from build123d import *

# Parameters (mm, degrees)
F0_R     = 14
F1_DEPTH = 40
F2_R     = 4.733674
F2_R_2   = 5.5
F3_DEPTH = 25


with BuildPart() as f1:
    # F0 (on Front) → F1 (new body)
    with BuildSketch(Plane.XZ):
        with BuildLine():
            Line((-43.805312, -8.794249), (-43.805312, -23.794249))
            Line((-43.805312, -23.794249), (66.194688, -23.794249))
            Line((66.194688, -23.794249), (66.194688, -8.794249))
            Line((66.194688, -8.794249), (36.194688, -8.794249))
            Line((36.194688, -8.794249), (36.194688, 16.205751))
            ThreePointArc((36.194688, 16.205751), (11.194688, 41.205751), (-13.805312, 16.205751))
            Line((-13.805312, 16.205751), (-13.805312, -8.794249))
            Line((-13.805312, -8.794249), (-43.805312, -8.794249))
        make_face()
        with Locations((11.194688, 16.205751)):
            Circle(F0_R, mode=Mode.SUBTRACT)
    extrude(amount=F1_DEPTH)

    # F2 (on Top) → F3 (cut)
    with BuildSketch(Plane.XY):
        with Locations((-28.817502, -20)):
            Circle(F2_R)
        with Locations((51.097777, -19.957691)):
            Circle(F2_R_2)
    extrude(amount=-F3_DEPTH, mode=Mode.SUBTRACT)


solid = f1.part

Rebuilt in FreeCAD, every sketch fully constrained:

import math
import FreeCAD as App
import Part
import Sketcher

V = App.Vector
Q = App.Units.Quantity

doc = App.newDocument("Part")
params = doc.addObject("Spreadsheet::Sheet", "Params")
for row, (alias, value) in enumerate([
    ("sketch1_diameter", "28 mm"),
    ("sketch1_radius", "25 mm"),
    ("sketch1_width", "110 mm"),
    ("sketch1_height", "15 mm"),
    ("sketch1_height2", "25 mm"),
    ("pad1_length", "40 mm"),
    ("sketch2_diameter", "11 mm"),
    ("pocket1_length", "25 mm"),
], start=1):
    params.set(f"A{row}", alias)
    params.set(f"B{row}", "=" + value)
    params.setAlias(f"B{row}", alias)

body = doc.addObject("PartDesign::Body", "Body")

sketch1 = body.newObject("Sketcher::SketchObject", "Sketch")
sketch1.AttachmentSupport = (doc.getObject("XZ_Plane"), [""])
sketch1.MapMode = "FlatFace"
sketch1.addGeometry(Part.LineSegment(V(-44, -9, 0), V(-44, -24, 0)), False)
sketch1.addGeometry(Part.LineSegment(V(-44, -24, 0), V(66, -24, 0)), False)
sketch1.addGeometry(Part.LineSegment(V(66, -24, 0), V(66, -9, 0)), False)
sketch1.addGeometry(Part.LineSegment(V(66, -9, 0), V(36, -9, 0)), False)
sketch1.addGeometry(Part.LineSegment(V(36, -9, 0), V(36, 16, 0)), False)
sketch1.addGeometry(Part.ArcOfCircle(Part.Circle(V(11, 16, 0), V(0, 0, 1), 25), math.radians(0), math.radians(180)), False)
sketch1.addGeometry(Part.LineSegment(V(-14, 16, 0), V(-14, -9, 0)), False)
sketch1.addGeometry(Part.LineSegment(V(-14, -9, 0), V(-44, -9, 0)), False)
sketch1.addGeometry(Part.Circle(V(11, 16, 0), V(0, 0, 1), 14), False)
sketch1.addConstraint(Sketcher.Constraint("Coincident", 0, 2, 1, 1))
sketch1.addConstraint(Sketcher.Constraint("Coincident", 1, 2, 2, 1))
sketch1.addConstraint(Sketcher.Constraint("Coincident", 2, 2, 3, 1))
sketch1.addConstraint(Sketcher.Constraint("Coincident", 3, 2, 4, 1))
sketch1.addConstraint(Sketcher.Constraint("Tangent", 4, 2, 5, 1))
sketch1.addConstraint(Sketcher.Constraint("Tangent", 5, 2, 6, 1))
sketch1.addConstraint(Sketcher.Constraint("Coincident", 6, 2, 7, 1))
sketch1.addConstraint(Sketcher.Constraint("Coincident", 7, 2, 0, 1))
sketch1.addConstraint(Sketcher.Constraint("Vertical", 0))
sketch1.addConstraint(Sketcher.Constraint("Horizontal", 1))
sketch1.addConstraint(Sketcher.Constraint("Vertical", 2))
sketch1.addConstraint(Sketcher.Constraint("Horizontal", 3))
sketch1.addConstraint(Sketcher.Constraint("Vertical", 4))
sketch1.addConstraint(Sketcher.Constraint("Vertical", 6))
sketch1.addConstraint(Sketcher.Constraint("Horizontal", 7))
sketch1.addConstraint(Sketcher.Constraint("Coincident", 8, 3, 5, 3))
sketch1.addConstraint(Sketcher.Constraint("Horizontal", 3, 2, 6, 2))
sketch1.addConstraint(Sketcher.Constraint("Equal", 3, 7))
sketch1.addConstraint(Sketcher.Constraint("Diameter", 8, Q("28 mm")))
sketch1.addConstraint(Sketcher.Constraint("Radius", 5, Q("25 mm")))
sketch1.addConstraint(Sketcher.Constraint("DistanceX", 1, 1, 1, 2, Q("110 mm")))
sketch1.addConstraint(Sketcher.Constraint("DistanceY", 0, 2, 0, 1, Q("15 mm")))
sketch1.addConstraint(Sketcher.Constraint("DistanceY", 4, 1, 4, 2, Q("25 mm")))
sketch1.addConstraint(Sketcher.Constraint("DistanceY", -1, 1, 5, 3, Q("16.205751 mm")))
sketch1.addConstraint(Sketcher.Constraint("DistanceX", -1, 1, 1, 2, Q("66.194688 mm")))
sketch1.setExpression("Constraints[18]", "Params.sketch1_diameter")
sketch1.setExpression("Constraints[19]", "Params.sketch1_radius")
sketch1.setExpression("Constraints[20]", "Params.sketch1_width")
sketch1.setExpression("Constraints[21]", "Params.sketch1_height")
sketch1.setExpression("Constraints[22]", "Params.sketch1_height2")
pad1 = body.newObject("PartDesign::Pad", "Pad")
pad1.Profile = sketch1
pad1.setExpression("Length", "Params.pad1_length")

sketch2 = body.newObject("Sketcher::SketchObject", "Sketch001")
sketch2.AttachmentSupport = (doc.getObject("XY_Plane"), [""])
sketch2.MapMode = "FlatFace"
sketch2.addGeometry(Part.Circle(V(-28.8, -20, 0), V(0, 0, 1), 4.7), False)
sketch2.addGeometry(Part.Circle(V(51.1, -20, 0), V(0, 0, 1), 5.5), False)
sketch2.addConstraint(Sketcher.Constraint("Diameter", 1, Q("11 mm")))
sketch2.addConstraint(Sketcher.Constraint("DistanceY", 0, 3, -1, 1, Q("20 mm")))
sketch2.addConstraint(Sketcher.Constraint("Diameter", 0, Q("9.467348 mm")))
sketch2.addConstraint(Sketcher.Constraint("DistanceY", 1, 3, -1, 1, Q("19.957691 mm")))
sketch2.addConstraint(Sketcher.Constraint("DistanceX", 0, 3, 1, 3, Q("79.915279 mm")))
sketch2.addConstraint(Sketcher.Constraint("DistanceX", 0, 3, -1, 1, Q("28.817502 mm")))
sketch2.setExpression("Constraints[0]", "Params.sketch2_diameter")
pocket1 = body.newObject("PartDesign::Pocket", "Pocket")
pocket1.Profile = sketch2
pocket1.setExpression("Length", "Params.pocket1_length")

doc.recompute()
